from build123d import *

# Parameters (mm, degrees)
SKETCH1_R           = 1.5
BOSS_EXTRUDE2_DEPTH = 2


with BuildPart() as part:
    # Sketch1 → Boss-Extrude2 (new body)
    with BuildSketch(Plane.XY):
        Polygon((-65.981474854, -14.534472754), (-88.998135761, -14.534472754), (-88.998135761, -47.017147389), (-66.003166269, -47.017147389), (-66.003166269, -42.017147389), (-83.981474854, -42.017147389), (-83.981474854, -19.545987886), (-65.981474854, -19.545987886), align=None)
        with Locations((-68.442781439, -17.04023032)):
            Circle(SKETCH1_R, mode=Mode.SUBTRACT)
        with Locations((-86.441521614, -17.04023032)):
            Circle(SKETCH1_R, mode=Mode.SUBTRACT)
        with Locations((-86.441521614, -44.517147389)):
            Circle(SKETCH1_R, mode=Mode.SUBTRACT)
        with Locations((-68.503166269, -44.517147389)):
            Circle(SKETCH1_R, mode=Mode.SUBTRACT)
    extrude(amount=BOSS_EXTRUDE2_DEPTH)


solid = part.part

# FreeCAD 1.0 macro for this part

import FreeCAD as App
import Part
import Sketcher

V = App.Vector
Q = App.Units.Quantity

doc = App.newDocument("Part")
body = doc.addObject("PartDesign::Body", "Body")

# Sketch on XY plane
sketch1 = doc.addObject("Sketcher::SketchObject", "Sketch")
body.addObject(sketch1)
sketch1.AttachmentSupport = (doc.XY_Plane, [""])
sketch1.MapMode = "FlatFace"
sketch1.addGeometry([
    Part.LineSegment(V(-66, -14.5, 0), V(-89, -14.5, 0)),  # 0
    Part.LineSegment(V(-89, -14.5, 0), V(-89, -47, 0)),  # 1
    Part.LineSegment(V(-89, -47, 0), V(-66, -47, 0)),  # 2
    Part.LineSegment(V(-66, -47, 0), V(-66, -42, 0)),  # 3
    Part.LineSegment(V(-66, -42, 0), V(-84, -42, 0)),  # 4
    Part.LineSegment(V(-84, -42, 0), V(-84, -19.5, 0)),  # 5
    Part.LineSegment(V(-84, -19.5, 0), V(-66, -19.5, 0)),  # 6
    Part.LineSegment(V(-66, -19.5, 0), V(-66, -14.5, 0)),  # 7
    Part.Circle(V(-86.4, -44.5, 0), V(0, 0, 1), 1.5),  # 8
    Part.Circle(V(-68.5, -44.5, 0), V(0, 0, 1), 1.5),  # 9
    Part.Circle(V(-86.4, -17, 0), V(0, 0, 1), 1.5),  # 10
    Part.Circle(V(-68.4, -17, 0), V(0, 0, 1), 1.5),  # 11
], False)
sketch1.addConstraint([
    Sketcher.Constraint("Coincident", 0, 2, 1, 1),
    Sketcher.Constraint("Coincident", 1, 2, 2, 1),
    Sketcher.Constraint("Coincident", 2, 2, 3, 1),
    Sketcher.Constraint("Coincident", 3, 2, 4, 1),
    Sketcher.Constraint("Coincident", 4, 2, 5, 1),
    Sketcher.Constraint("Coincident", 5, 2, 6, 1),
    Sketcher.Constraint("Coincident", 6, 2, 7, 1),
    Sketcher.Constraint("Coincident", 7, 2, 0, 1),
    Sketcher.Constraint("Horizontal", 0),
    Sketcher.Constraint("Vertical", 1),
    Sketcher.Constraint("Horizontal", 2),
    Sketcher.Constraint("Vertical", 3),
    Sketcher.Constraint("Horizontal", 4),
    Sketcher.Constraint("Vertical", 5),
    Sketcher.Constraint("Horizontal", 6),
    Sketcher.Constraint("Vertical", 7),
    Sketcher.Constraint("Equal", 8, 9),
    Sketcher.Constraint("Equal", 9, 10),
    Sketcher.Constraint("Equal", 10, 11),
    Sketcher.Constraint("Horizontal", 8, 3, 9, 3),
    Sketcher.Constraint("Horizontal", 10, 3, 11, 3),
    Sketcher.Constraint("Vertical", 8, 3, 10, 3),
    Sketcher.Constraint("Diameter", 8, Q("3 mm")),
    Sketcher.Constraint("DistanceX", 6, 1, 6, 2, Q("18 mm")),
    Sketcher.Constraint("DistanceY", 3, 1, 3, 2, Q("5 mm")),
    Sketcher.Constraint("DistanceY", 1, 2, 8, 3, Q("2.5 mm")),
    Sketcher.Constraint("DistanceX", 9, 3, 2, 2, Q("2.5 mm")),
    Sketcher.Constraint("DistanceX", 0, 2, 0, 1, Q("23.016661 mm")),
    Sketcher.Constraint("DistanceX", 2, 1, 2, 2, Q("22.994969 mm")),
    Sketcher.Constraint("DistanceY", 5, 1, 5, 2, Q("22.47116 mm")),
    Sketcher.Constraint("DistanceY", 1, 2, 1, 1, Q("32.482675 mm")),
    Sketcher.Constraint("DistanceX", 8, 3, -1, 1, Q("86.441522 mm")),
    Sketcher.Constraint("DistanceY", 10, 3, -1, 1, Q("17.04023 mm")),
    Sketcher.Constraint("DistanceX", 11, 3, -1, 1, Q("68.442781 mm")),
    Sketcher.Constraint("DistanceY", 8, 3, -1, 1, Q("44.517147 mm")),
    Sketcher.Constraint("DistanceX", 9, 3, -1, 1, Q("68.503166 mm")),
])
pad1 = doc.addObject("PartDesign::Pad", "Pad")
body.addObject(pad1)
pad1.Profile = sketch1
pad1.Length = 2

doc.recompute()
